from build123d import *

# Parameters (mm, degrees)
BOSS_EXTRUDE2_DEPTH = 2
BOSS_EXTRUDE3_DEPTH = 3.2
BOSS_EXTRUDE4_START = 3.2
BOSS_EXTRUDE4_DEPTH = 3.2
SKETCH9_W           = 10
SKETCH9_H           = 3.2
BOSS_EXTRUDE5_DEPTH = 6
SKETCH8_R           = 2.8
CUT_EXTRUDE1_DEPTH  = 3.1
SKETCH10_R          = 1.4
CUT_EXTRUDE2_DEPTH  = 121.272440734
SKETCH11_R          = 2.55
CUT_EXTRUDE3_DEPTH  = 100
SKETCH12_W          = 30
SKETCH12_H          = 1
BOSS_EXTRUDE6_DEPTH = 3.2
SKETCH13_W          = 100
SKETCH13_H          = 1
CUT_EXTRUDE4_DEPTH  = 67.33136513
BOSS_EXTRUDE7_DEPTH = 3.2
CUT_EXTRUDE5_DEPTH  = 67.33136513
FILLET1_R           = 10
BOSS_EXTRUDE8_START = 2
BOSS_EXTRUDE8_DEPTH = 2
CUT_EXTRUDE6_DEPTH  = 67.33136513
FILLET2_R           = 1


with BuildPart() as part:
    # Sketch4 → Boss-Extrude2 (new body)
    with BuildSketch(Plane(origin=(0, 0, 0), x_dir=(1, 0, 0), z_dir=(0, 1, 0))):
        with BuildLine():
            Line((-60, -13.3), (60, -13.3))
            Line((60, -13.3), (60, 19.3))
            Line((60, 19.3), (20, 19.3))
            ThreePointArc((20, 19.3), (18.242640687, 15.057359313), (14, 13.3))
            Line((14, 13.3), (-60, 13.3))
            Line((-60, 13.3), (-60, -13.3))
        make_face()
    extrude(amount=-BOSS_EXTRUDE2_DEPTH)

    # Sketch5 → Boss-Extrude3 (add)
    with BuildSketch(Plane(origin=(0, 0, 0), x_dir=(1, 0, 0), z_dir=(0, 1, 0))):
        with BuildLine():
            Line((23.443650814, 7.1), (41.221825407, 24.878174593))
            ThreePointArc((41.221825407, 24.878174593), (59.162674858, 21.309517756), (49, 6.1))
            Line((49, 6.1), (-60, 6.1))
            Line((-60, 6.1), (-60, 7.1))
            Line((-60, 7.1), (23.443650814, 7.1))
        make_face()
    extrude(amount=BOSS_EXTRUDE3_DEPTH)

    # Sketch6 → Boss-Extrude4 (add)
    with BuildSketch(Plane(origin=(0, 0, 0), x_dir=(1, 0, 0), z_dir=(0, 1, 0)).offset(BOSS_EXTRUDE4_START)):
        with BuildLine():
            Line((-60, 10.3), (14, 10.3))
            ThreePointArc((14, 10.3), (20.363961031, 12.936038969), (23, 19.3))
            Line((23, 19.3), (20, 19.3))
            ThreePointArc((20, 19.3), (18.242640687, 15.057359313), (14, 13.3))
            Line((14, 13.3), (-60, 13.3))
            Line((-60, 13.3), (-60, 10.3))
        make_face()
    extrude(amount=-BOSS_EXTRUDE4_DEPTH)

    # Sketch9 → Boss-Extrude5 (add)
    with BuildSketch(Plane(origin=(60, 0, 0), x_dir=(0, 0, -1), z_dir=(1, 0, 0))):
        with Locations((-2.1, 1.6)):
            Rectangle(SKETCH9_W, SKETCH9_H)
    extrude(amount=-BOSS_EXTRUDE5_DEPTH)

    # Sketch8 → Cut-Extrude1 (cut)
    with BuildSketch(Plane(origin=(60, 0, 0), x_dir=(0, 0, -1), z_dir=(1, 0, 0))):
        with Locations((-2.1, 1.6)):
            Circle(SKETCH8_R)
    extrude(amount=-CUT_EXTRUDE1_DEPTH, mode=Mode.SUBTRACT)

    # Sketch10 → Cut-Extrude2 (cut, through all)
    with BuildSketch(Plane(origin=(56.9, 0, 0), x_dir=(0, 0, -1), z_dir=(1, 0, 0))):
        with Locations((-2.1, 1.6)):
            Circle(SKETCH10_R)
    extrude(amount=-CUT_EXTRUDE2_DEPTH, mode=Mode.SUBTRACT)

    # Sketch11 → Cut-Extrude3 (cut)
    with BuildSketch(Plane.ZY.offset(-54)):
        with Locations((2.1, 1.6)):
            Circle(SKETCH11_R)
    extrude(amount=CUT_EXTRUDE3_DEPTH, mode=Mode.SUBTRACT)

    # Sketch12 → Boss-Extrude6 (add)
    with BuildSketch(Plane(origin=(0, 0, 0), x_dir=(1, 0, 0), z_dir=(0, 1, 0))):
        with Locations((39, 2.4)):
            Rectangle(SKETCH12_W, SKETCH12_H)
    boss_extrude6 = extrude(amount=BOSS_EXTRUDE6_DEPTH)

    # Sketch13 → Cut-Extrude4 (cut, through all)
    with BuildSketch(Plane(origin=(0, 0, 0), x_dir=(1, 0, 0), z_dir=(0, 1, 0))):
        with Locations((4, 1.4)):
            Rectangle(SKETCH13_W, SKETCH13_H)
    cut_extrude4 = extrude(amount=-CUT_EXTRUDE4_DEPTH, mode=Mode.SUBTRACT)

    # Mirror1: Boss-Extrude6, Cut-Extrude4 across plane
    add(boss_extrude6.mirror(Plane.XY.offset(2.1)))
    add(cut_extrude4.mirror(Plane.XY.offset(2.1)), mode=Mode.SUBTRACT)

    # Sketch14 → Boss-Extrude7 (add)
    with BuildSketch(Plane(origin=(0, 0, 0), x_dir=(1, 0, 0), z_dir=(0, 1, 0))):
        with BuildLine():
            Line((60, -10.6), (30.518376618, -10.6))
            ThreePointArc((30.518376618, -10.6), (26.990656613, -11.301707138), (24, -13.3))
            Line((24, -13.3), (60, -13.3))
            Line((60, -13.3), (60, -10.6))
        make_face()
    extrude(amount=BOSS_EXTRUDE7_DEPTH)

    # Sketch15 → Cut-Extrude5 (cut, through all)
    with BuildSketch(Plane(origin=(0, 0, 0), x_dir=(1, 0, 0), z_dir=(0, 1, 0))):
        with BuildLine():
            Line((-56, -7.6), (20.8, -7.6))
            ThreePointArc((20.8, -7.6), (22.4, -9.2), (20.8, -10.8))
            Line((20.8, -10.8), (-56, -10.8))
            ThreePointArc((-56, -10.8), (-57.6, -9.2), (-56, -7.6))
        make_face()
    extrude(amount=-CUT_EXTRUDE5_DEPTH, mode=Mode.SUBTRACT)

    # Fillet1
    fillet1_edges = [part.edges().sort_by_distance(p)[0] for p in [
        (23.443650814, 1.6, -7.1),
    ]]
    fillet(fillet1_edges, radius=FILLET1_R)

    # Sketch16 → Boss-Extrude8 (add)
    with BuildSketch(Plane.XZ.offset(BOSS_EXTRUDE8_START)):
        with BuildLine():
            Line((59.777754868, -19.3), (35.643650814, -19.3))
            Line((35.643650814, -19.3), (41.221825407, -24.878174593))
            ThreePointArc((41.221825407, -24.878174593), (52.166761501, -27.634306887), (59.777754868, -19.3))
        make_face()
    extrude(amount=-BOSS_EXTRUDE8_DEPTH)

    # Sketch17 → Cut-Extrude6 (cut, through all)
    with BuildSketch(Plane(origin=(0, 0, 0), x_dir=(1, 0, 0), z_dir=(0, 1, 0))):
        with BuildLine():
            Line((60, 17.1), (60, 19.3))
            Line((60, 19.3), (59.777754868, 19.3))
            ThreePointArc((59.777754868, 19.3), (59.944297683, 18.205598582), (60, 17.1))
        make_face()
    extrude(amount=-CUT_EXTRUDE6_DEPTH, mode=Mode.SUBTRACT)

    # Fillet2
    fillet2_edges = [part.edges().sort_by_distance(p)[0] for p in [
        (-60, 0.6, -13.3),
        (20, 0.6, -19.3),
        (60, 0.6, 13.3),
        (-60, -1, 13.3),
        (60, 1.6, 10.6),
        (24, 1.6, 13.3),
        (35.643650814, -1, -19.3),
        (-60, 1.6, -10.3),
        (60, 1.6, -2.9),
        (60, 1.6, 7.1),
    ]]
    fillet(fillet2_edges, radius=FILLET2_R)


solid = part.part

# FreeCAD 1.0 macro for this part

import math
import FreeCAD as App
import Part
import Sketcher

V = App.Vector
Q = App.Units.Quantity


def edges_at(feature, points):
    """Names of the edges that pass closest to the given points."""
    edges = feature.Shape.Edges
    near = lambda p: min(range(len(edges)), key=lambda i: edges[i].distToShape(Part.Vertex(*p))[0])
    return sorted({f"Edge{near(p) + 1}" for p in points})

doc = App.newDocument("Part")
body = doc.addObject("PartDesign::Body", "Body")

# Sketch on XZ plane
sketch1 = body.newObject("Sketcher::SketchObject", "Sketch")
sketch1.AttachmentSupport = (doc.getObject("XZ_Plane"), [""])
sketch1.MapMode = "FlatFace"
sketch1.addGeometry(Part.LineSegment(V(-60, 13, 0), V(60, 13, 0)), False)
sketch1.addGeometry(Part.LineSegment(V(60, 13, 0), V(60, -19, 0)), False)
sketch1.addGeometry(Part.LineSegment(V(60, -19, 0), V(20, -19, 0)), False)
sketch1.addGeometry(Part.ArcOfCircle(Part.Circle(V(14, -19, 0), V(0, 0, 1), 6), math.radians(0), math.radians(90)), False)
sketch1.addGeometry(Part.LineSegment(V(14, -13, 0), V(-60, -13, 0)), False)
sketch1.addGeometry(Part.LineSegment(V(-60, -13, 0), V(-60, 13, 0)), False)
sketch1.addConstraint(Sketcher.Constraint("Coincident", 0, 2, 1, 1))
sketch1.addConstraint(Sketcher.Constraint("Coincident", 1, 2, 2, 1))
sketch1.addConstraint(Sketcher.Constraint("Coincident", 2, 2, 3, 1))
sketch1.addConstraint(Sketcher.Constraint("Tangent", 3, 2, 4, 1))
sketch1.addConstraint(Sketcher.Constraint("Coincident", 4, 2, 5, 1))
sketch1.addConstraint(Sketcher.Constraint("Coincident", 5, 2, 0, 1))
sketch1.addConstraint(Sketcher.Constraint("Horizontal", 0))
sketch1.addConstraint(Sketcher.Constraint("Vertical", 1))
sketch1.addConstraint(Sketcher.Constraint("Horizontal", 2))
sketch1.addConstraint(Sketcher.Constraint("Horizontal", 4))
sketch1.addConstraint(Sketcher.Constraint("Vertical", 5))
sketch1.addConstraint(Sketcher.Constraint("Symmetric", 0, 2, 4, 2, -1, 1))
sketch1.addConstraint(Sketcher.Constraint("Horizontal", 3, 3, 1, 2))
sketch1.addConstraint(Sketcher.Constraint("Radius", 3, Q("6 mm")))
sketch1.addConstraint(Sketcher.Constraint("DistanceX", 0, 1, 0, 2, Q("120 mm")))
sketch1.addConstraint(Sketcher.Constraint("DistanceX", 2, 2, 2, 1, Q("40 mm")))
sketch1.addConstraint(Sketcher.Constraint("DistanceY", 1, 2, 1, 1, Q("32.6 mm")))
pad1 = body.newObject("PartDesign::Pad", "Pad")
pad1.Profile = sketch1
pad1.Length = 2

# Sketch on XZ plane
sketch2 = body.newObject("Sketcher::SketchObject", "Sketch001")
sketch2.AttachmentSupport = (doc.getObject("XZ_Plane"), [""])
sketch2.MapMode = "FlatFace"
sketch2.addGeometry(Part.LineSegment(V(41.2, -24.9, 0), V(23.4, -7.1, 0)), False)
sketch2.addGeometry(Part.LineSegment(V(23.4, -7.1, 0), V(-60, -7.1, 0)), False)
sketch2.addGeometry(Part.LineSegment(V(-60, -7.1, 0), V(-60, -6.1, 0)), False)
sketch2.addGeometry(Part.LineSegment(V(-60, -6.1, 0), V(49, -6.1, 0)), False)
sketch2.addGeometry(Part.ArcOfCircle(Part.Circle(V(49, -17.1, 0), V(0, 0, 1), 11), math.radians(-135), math.radians(90)), False)
sketch2.addConstraint(Sketcher.Constraint("Coincident", 0, 2, 1, 1))
sketch2.addConstraint(Sketcher.Constraint("Coincident", 1, 2, 2, 1))
sketch2.addConstraint(Sketcher.Constraint("Coincident", 2, 2, 3, 1))
sketch2.addConstraint(Sketcher.Constraint("Tangent", 3, 2, 4, 2))
sketch2.addConstraint(Sketcher.Constraint("Tangent", 4, 1, 0, 1))
sketch2.addConstraint(Sketcher.Constraint("Horizontal", 1))
sketch2.addConstraint(Sketcher.Constraint("Vertical", 2))
sketch2.addConstraint(Sketcher.Constraint("Horizontal", 3))
sketch2.addConstraint(Sketcher.Constraint("Radius", 4, Q("11 mm")))
sketch2.addConstraint(Sketcher.Constraint("DistanceX", 3, 1, 3, 2, Q("109 mm")))
sketch2.addConstraint(Sketcher.Constraint("DistanceY", 2, 1, 2, 2, Q("1 mm")))
sketch2.addConstraint(Sketcher.Constraint("Angle", 0, Q("135 deg")))
sketch2.addConstraint(Sketcher.Constraint("DistanceX", -1, 1, 4, 3, Q("49 mm")))
sketch2.addConstraint(Sketcher.Constraint("DistanceY", 4, 3, -1, 1, Q("17.1 mm")))
pad2 = body.newObject("PartDesign::Pad", "Pad001")
pad2.Profile = sketch2
pad2.Length = 3.2
pad2.Reversed = True

# Sketch on XZ plane
sketch3 = body.newObject("Sketcher::SketchObject", "Sketch002")
sketch3.AttachmentSupport = (doc.getObject("XZ_Plane"), [""])
sketch3.MapMode = "FlatFace"
sketch3.AttachmentOffset = App.Placement(V(0, 0, -3.2), App.Rotation())
sketch3.addGeometry(Part.LineSegment(V(-60, -10.3, 0), V(14, -10.3, 0)), False)
sketch3.addGeometry(Part.ArcOfCircle(Part.Circle(V(14, -19.3, 0), V(0, 0, 1), 9), math.radians(0), math.radians(90)), False)
sketch3.addGeometry(Part.LineSegment(V(23, -19.3, 0), V(20, -19.3, 0)), False)
sketch3.addGeometry(Part.ArcOfCircle(Part.Circle(V(14, -19.3, 0), V(0, 0, 1), 6), math.radians(0), math.radians(90)), False)
sketch3.addGeometry(Part.LineSegment(V(14, -13.3, 0), V(-60, -13.3, 0)), False)
sketch3.addGeometry(Part.LineSegment(V(-60, -13.3, 0), V(-60, -10.3, 0)), False)
sketch3.addConstraint(Sketcher.Constraint("Tangent", 0, 2, 1, 2))
sketch3.addConstraint(Sketcher.Constraint("Coincident", 1, 1, 2, 1))
sketch3.addConstraint(Sketcher.Constraint("Coincident", 2, 2, 3, 1))
sketch3.addConstraint(Sketcher.Constraint("Tangent", 3, 2, 4, 1))
sketch3.addConstraint(Sketcher.Constraint("Coincident", 4, 2, 5, 1))
sketch3.addConstraint(Sketcher.Constraint("Coincident", 5, 2, 0, 1))
sketch3.addConstraint(Sketcher.Constraint("Horizontal", 0))
sketch3.addConstraint(Sketcher.Constraint("Horizontal", 2))
sketch3.addConstraint(Sketcher.Constraint("Horizontal", 4))
sketch3.addConstraint(Sketcher.Constraint("Vertical", 5))
sketch3.addConstraint(Sketcher.Constraint("Coincident", 3, 3, 1, 3))
sketch3.addConstraint(Sketcher.Constraint("Horizontal", 3, 3, 1, 1))
sketch3.addConstraint(Sketcher.Constraint("Radius", 1, Q("9 mm")))
sketch3.addConstraint(Sketcher.Constraint("Radius", 3, Q("6 mm")))
sketch3.addConstraint(Sketcher.Constraint("DistanceX", 0, 1, 0, 2, Q("74 mm")))
sketch3.addConstraint(Sketcher.Constraint("DistanceX", -1, 1, 1, 3, Q("14 mm")))
sketch3.addConstraint(Sketcher.Constraint("DistanceY", 1, 3, -1, 1, Q("19.3 mm")))
pad3 = body.newObject("PartDesign::Pad", "Pad002")
pad3.Profile = sketch3
pad3.Length = 3.2

# Sketch on YZ plane
sketch4 = body.newObject("Sketcher::SketchObject", "Sketch003")
sketch4.AttachmentSupport = (doc.getObject("YZ_Plane"), [""])
sketch4.MapMode = "FlatFace"
sketch4.AttachmentOffset = App.Placement(V(0, 0, 60), App.Rotation())
sketch4.addGeometry(Part.LineSegment(V(3.2, 7.1, 0), V(0, 7.1, 0)), False)
sketch4.addGeometry(Part.LineSegment(V(0, 7.1, 0), V(0, -2.9, 0)), False)
sketch4.addGeometry(Part.LineSegment(V(0, -2.9, 0), V(3.2, -2.9, 0)), False)
sketch4.addGeometry(Part.LineSegment(V(3.2, -2.9, 0), V(3.2, 7.1, 0)), False)
sketch4.addConstraint(Sketcher.Constraint("Coincident", 0, 2, 1, 1))
sketch4.addConstraint(Sketcher.Constraint("Coincident", 1, 2, 2, 1))
sketch4.addConstraint(Sketcher.Constraint("Coincident", 2, 2, 3, 1))
sketch4.addConstraint(Sketcher.Constraint("Coincident", 3, 2, 0, 1))
sketch4.addConstraint(Sketcher.Constraint("Horizontal", 0))
sketch4.addConstraint(Sketcher.Constraint("Vertical", 1))
sketch4.addConstraint(Sketcher.Constraint("Horizontal", 2))
sketch4.addConstraint(Sketcher.Constraint("Vertical", 3))
sketch4.addConstraint(Sketcher.Constraint("PointOnObject", 0, 2, -2))
sketch4.addConstraint(Sketcher.Constraint("DistanceY", 1, 2, 1, 1, Q("10 mm")))
sketch4.addConstraint(Sketcher.Constraint("DistanceX", 0, 2, 0, 1, Q("3.2 mm")))
sketch4.addConstraint(Sketcher.Constraint("DistanceY", -1, 1, 0, 2, Q("7.1 mm")))
pad4 = body.newObject("PartDesign::Pad", "Pad003")
pad4.Profile = sketch4
pad4.Length = 6
pad4.Reversed = True

# Sketch on YZ plane
sketch5 = body.newObject("Sketcher::SketchObject", "Sketch004")
sketch5.AttachmentSupport = (doc.getObject("YZ_Plane"), [""])
sketch5.MapMode = "FlatFace"
sketch5.AttachmentOffset = App.Placement(V(0, 0, 60), App.Rotation())
sketch5.addGeometry(Part.Circle(V(1.6, 2.1, 0), V(0, 0, 1), 2.8), False)
sketch5.addConstraint(Sketcher.Constraint("Diameter", 0, Q("5.6 mm")))
sketch5.addConstraint(Sketcher.Constraint("DistanceX", -1, 1, 0, 3, Q("1.6 mm")))
sketch5.addConstraint(Sketcher.Constraint("DistanceY", -1, 1, 0, 3, Q("2.1 mm")))
pocket1 = body.newObject("PartDesign::Pocket", "Pocket")
pocket1.Profile = sketch5
pocket1.Length = 3.1

# Sketch on YZ plane
sketch6 = body.newObject("Sketcher::SketchObject", "Sketch005")
sketch6.AttachmentSupport = (doc.getObject("YZ_Plane"), [""])
sketch6.MapMode = "FlatFace"
sketch6.AttachmentOffset = App.Placement(V(0, 0, 56.9), App.Rotation())
sketch6.addGeometry(Part.Circle(V(1.6, 2.1, 0), V(0, 0, 1), 1.4), False)
sketch6.addConstraint(Sketcher.Constraint("Diameter", 0, Q("2.8 mm")))
sketch6.addConstraint(Sketcher.Constraint("DistanceX", -1, 1, 0, 3, Q("1.6 mm")))
sketch6.addConstraint(Sketcher.Constraint("DistanceY", -1, 1, 0, 3, Q("2.1 mm")))
pocket2 = body.newObject("PartDesign::Pocket", "Pocket001")
pocket2.Profile = sketch6
pocket2.Type = "ThroughAll"

# Sketch on YZ plane
sketch7 = body.newObject("Sketcher::SketchObject", "Sketch006")
sketch7.AttachmentSupport = (doc.getObject("YZ_Plane"), [""])
sketch7.MapMode = "FlatFace"
sketch7.AttachmentOffset = App.Placement(V(0, 0, 54), App.Rotation())
sketch7.addGeometry(Part.Circle(V(1.6, 2.1, 0), V(0, 0, 1), 2.5), False)
sketch7.addConstraint(Sketcher.Constraint("Diameter", 0, Q("5.1 mm")))
sketch7.addConstraint(Sketcher.Constraint("DistanceX", -1, 1, 0, 3, Q("1.6 mm")))
sketch7.addConstraint(Sketcher.Constraint("DistanceY", -1, 1, 0, 3, Q("2.1 mm")))
pocket3 = body.newObject("PartDesign::Pocket", "Pocket002")
pocket3.Profile = sketch7
pocket3.Length = 100

# Sketch on XZ plane
sketch8 = body.newObject("Sketcher::SketchObject", "Sketch007")
sketch8.AttachmentSupport = (doc.getObject("XZ_Plane"), [""])
sketch8.MapMode = "FlatFace"
sketch8.addGeometry(Part.LineSegment(V(24, -2.9, 0), V(24, -1.9, 0)), False)
sketch8.addGeometry(Part.LineSegment(V(24, -1.9, 0), V(54, -1.9, 0)), False)
sketch8.addGeometry(Part.LineSegment(V(54, -1.9, 0), V(54, -2.9, 0)), False)
sketch8.addGeometry(Part.LineSegment(V(54, -2.9, 0), V(24, -2.9, 0)), False)
sketch8.addConstraint(Sketcher.Constraint("Coincident", 0, 2, 1, 1))
sketch8.addConstraint(Sketcher.Constraint("Coincident", 1, 2, 2, 1))
sketch8.addConstraint(Sketcher.Constraint("Coincident", 2, 2, 3, 1))
sketch8.addConstraint(Sketcher.Constraint("Coincident", 3, 2, 0, 1))
sketch8.addConstraint(Sketcher.Constraint("Vertical", 0))
sketch8.addConstraint(Sketcher.Constraint("Horizontal", 1))
sketch8.addConstraint(Sketcher.Constraint("Vertical", 2))
sketch8.addConstraint(Sketcher.Constraint("Horizontal", 3))
sketch8.addConstraint(Sketcher.Constraint("DistanceX", 1, 1, 1, 2, Q("30 mm")))
sketch8.addConstraint(Sketcher.Constraint("DistanceY", 0, 1, 0, 2, Q("1 mm")))
sketch8.addConstraint(Sketcher.Constraint("DistanceX", -1, 1, 0, 2, Q("24 mm")))
sketch8.addConstraint(Sketcher.Constraint("DistanceY", 0, 2, -1, 1, Q("1.9 mm")))
pad5 = body.newObject("PartDesign::Pad", "Pad004")
pad5.Profile = sketch8
pad5.Length = 3.2
pad5.Reversed = True

# Sketch on XZ plane
sketch9 = body.newObject("Sketcher::SketchObject", "Sketch008")
sketch9.AttachmentSupport = (doc.getObject("XZ_Plane"), [""])
sketch9.MapMode = "FlatFace"
sketch9.addGeometry(Part.LineSegment(V(-46, -1.9, 0), V(-46, -0.9, 0)), False)
sketch9.addGeometry(Part.LineSegment(V(-46, -0.9, 0), V(54, -0.9, 0)), False)
sketch9.addGeometry(Part.LineSegment(V(54, -0.9, 0), V(54, -1.9, 0)), False)
sketch9.addGeometry(Part.LineSegment(V(54, -1.9, 0), V(-46, -1.9, 0)), False)
sketch9.addConstraint(Sketcher.Constraint("Coincident", 0, 2, 1, 1))
sketch9.addConstraint(Sketcher.Constraint("Coincident", 1, 2, 2, 1))
sketch9.addConstraint(Sketcher.Constraint("Coincident", 2, 2, 3, 1))
sketch9.addConstraint(Sketcher.Constraint("Coincident", 3, 2, 0, 1))
sketch9.addConstraint(Sketcher.Constraint("Vertical", 0))
sketch9.addConstraint(Sketcher.Constraint("Horizontal", 1))
sketch9.addConstraint(Sketcher.Constraint("Vertical", 2))
sketch9.addConstraint(Sketcher.Constraint("Horizontal", 3))
sketch9.addConstraint(Sketcher.Constraint("DistanceX", 1, 1, 1, 2, Q("100 mm")))
sketch9.addConstraint(Sketcher.Constraint("DistanceY", 0, 1, 0, 2, Q("1 mm")))
sketch9.addConstraint(Sketcher.Constraint("DistanceX", 0, 2, -1, 1, Q("46 mm")))
sketch9.addConstraint(Sketcher.Constraint("DistanceY", 0, 2, -1, 1, Q("0.9 mm")))
pocket4 = body.newObject("PartDesign::Pocket", "Pocket003")
pocket4.Profile = sketch9
pocket4.Type = "ThroughAll"
pocket4.Reversed = True
doc.recompute()

datumplane = body.newObject("PartDesign::Plane", "DatumPlane")
datumplane.AttachmentSupport = (doc.getObject("XY_Plane"), [""])
datumplane.MapMode = "FlatFace"
datumplane.AttachmentOffset = App.Placement(V(0, 0, 2.1), App.Rotation())
mirrored = body.newObject("PartDesign::Mirrored", "Mirrored")
mirrored.Originals = [pad5, pocket4]
mirrored.MirrorPlane = (datumplane, [""])
body.Tip = mirrored

# Sketch on XZ plane
sketch10 = body.newObject("Sketcher::SketchObject", "Sketch009")
sketch10.AttachmentSupport = (doc.getObject("XZ_Plane"), [""])
sketch10.MapMode = "FlatFace"
sketch10.addGeometry(Part.LineSegment(V(60, 10.6, 0), V(30.5, 10.6, 0)), False)
sketch10.addGeometry(Part.ArcOfCircle(Part.Circle(V(30.5, 19.8, 0), V(0, 0, 1), 9.2), math.radians(-135), math.radians(-90)), False)
sketch10.addGeometry(Part.LineSegment(V(24, 13.3, 0), V(60, 13.3, 0)), False)
sketch10.addGeometry(Part.LineSegment(V(60, 13.3, 0), V(60, 10.6, 0)), False)
sketch10.addConstraint(Sketcher.Constraint("Tangent", 0, 2, 1, 2))
sketch10.addConstraint(Sketcher.Constraint("Coincident", 1, 1, 2, 1))
sketch10.addConstraint(Sketcher.Constraint("Coincident", 2, 2, 3, 1))
sketch10.addConstraint(Sketcher.Constraint("Coincident", 3, 2, 0, 1))
sketch10.addConstraint(Sketcher.Constraint("Horizontal", 0))
sketch10.addConstraint(Sketcher.Constraint("Horizontal", 2))
sketch10.addConstraint(Sketcher.Constraint("Vertical", 3))
sketch10.addConstraint(Sketcher.Constraint("DistanceX", 2, 1, 2, 2, Q("36 mm")))
sketch10.addConstraint(Sketcher.Constraint("DistanceY", 3, 2, 3, 1, Q("2.7 mm")))
sketch10.addConstraint(Sketcher.Constraint("DistanceX", -1, 1, 1, 1, Q("24 mm")))
sketch10.addConstraint(Sketcher.Constraint("DistanceY", -1, 1, 0, 2, Q("10.6 mm")))
sketch10.addConstraint(Sketcher.Constraint("Radius", 1, Q("9.218377 mm")))
pad6 = body.newObject("PartDesign::Pad", "Pad005")
pad6.Profile = sketch10
pad6.Length = 3.2
pad6.Reversed = True

# Sketch on XZ plane
sketch11 = body.newObject("Sketcher::SketchObject", "Sketch010")
sketch11.AttachmentSupport = (doc.getObject("XZ_Plane"), [""])
sketch11.MapMode = "FlatFace"
sketch11.addGeometry(Part.LineSegment(V(20.8, 7.6, 0), V(-56, 7.6, 0)), False)
sketch11.addGeometry(Part.ArcOfCircle(Part.Circle(V(-56, 9.2, 0), V(0, 0, 1), 1.6), math.radians(90), math.radians(270)), False)
sketch11.addGeometry(Part.LineSegment(V(-56, 10.8, 0), V(20.8, 10.8, 0)), False)
sketch11.addGeometry(Part.ArcOfCircle(Part.Circle(V(20.8, 9.2, 0), V(0, 0, 1), 1.6), math.radians(-90), math.radians(90)), False)
sketch11.addConstraint(Sketcher.Constraint("Tangent", 0, 2, 1, 2))
sketch11.addConstraint(Sketcher.Constraint("Tangent", 1, 1, 2, 1))
sketch11.addConstraint(Sketcher.Constraint("Tangent", 2, 2, 3, 2))
sketch11.addConstraint(Sketcher.Constraint("Tangent", 3, 1, 0, 1))
sketch11.addConstraint(Sketcher.Constraint("Horizontal", 0))
sketch11.addConstraint(Sketcher.Constraint("Horizontal", 2))
sketch11.addConstraint(Sketcher.Constraint("Radius", 1, Q("1.6 mm")))
sketch11.addConstraint(Sketcher.Constraint("DistanceX", 0, 2, 0, 1, Q("76.8 mm")))
sketch11.addConstraint(Sketcher.Constraint("DistanceX", 1, 3, -1, 1, Q("56 mm")))
sketch11.addConstraint(Sketcher.Constraint("DistanceY", -1, 1, 1, 3, Q("9.2 mm")))
pocket5 = body.newObject("PartDesign::Pocket", "Pocket004")
pocket5.Profile = sketch11
pocket5.Type = "ThroughAll"
pocket5.Reversed = True
doc.recompute()

fillet = body.newObject("PartDesign::Fillet", "Fillet")
fillet.Base = (pocket5, edges_at(pocket5, [(23.444, 1.6, -7.1)]))
fillet.Radius = 10

# Sketch on XZ plane
sketch12 = body.newObject("Sketcher::SketchObject", "Sketch011")
sketch12.AttachmentSupport = (doc.getObject("XZ_Plane"), [""])
sketch12.MapMode = "FlatFace"
sketch12.AttachmentOffset = App.Placement(V(0, 0, 2), App.Rotation())
sketch12.addGeometry(Part.LineSegment(V(60, -19, 0), V(36, -19, 0)), False)
sketch12.addGeometry(Part.LineSegment(V(36, -19, 0), V(41, -25, 0)), False)
sketch12.addGeometry(Part.ArcOfCircle(Part.Circle(V(49, -17, 0), V(0, 0, 1), 11), math.radians(-135), math.radians(-12)), False)
sketch12.addConstraint(Sketcher.Constraint("Coincident", 0, 2, 1, 1))
sketch12.addConstraint(Sketcher.Constraint("Tangent", 1, 2, 2, 1))
sketch12.addConstraint(Sketcher.Constraint("Coincident", 2, 2, 0, 1))
sketch12.addConstraint(Sketcher.Constraint("Horizontal", 0))
sketch12.addConstraint(Sketcher.Constraint("Radius", 2, Q("11 mm")))
sketch12.addConstraint(Sketcher.Constraint("Angle", 1, Q("-45 deg")))
sketch12.addConstraint(Sketcher.Constraint("DistanceX", -1, 1, 2, 3, Q("49 mm")))
sketch12.addConstraint(Sketcher.Constraint("DistanceY", 2, 3, -1, 1, Q("17.1 mm")))
sketch12.addConstraint(Sketcher.Constraint("DistanceY", 0, 2, -1, 1, Q("19.3 mm")))
pad7 = body.newObject("PartDesign::Pad", "Pad006")
pad7.Profile = sketch12
pad7.Length = 2
pad7.Reversed = True

# Sketch on XZ plane
sketch13 = body.newObject("Sketcher::SketchObject", "Sketch012")
sketch13.AttachmentSupport = (doc.getObject("XZ_Plane"), [""])
sketch13.MapMode = "FlatFace"
sketch13.addGeometry(Part.LineSegment(V(60, -17.1, 0), V(60, -19.3, 0)), False)
sketch13.addGeometry(Part.LineSegment(V(60, -19.3, 0), V(59.78, -19.3, 0)), False)
sketch13.addGeometry(Part.ArcOfCircle(Part.Circle(V(49, -17.1, 0), V(0, 0, 1), 11), math.radians(-11.54), math.radians(0)), False)
sketch13.addConstraint(Sketcher.Constraint("Coincident", 0, 2, 1, 1))
sketch13.addConstraint(Sketcher.Constraint("Coincident", 1, 2, 2, 1))
sketch13.addConstraint(Sketcher.Constraint("Tangent", 2, 2, 0, 1))
sketch13.addConstraint(Sketcher.Constraint("Vertical", 0))
sketch13.addConstraint(Sketcher.Constraint("Horizontal", 1))
sketch13.addConstraint(Sketcher.Constraint("Radius", 2, Q("11 mm")))
sketch13.addConstraint(Sketcher.Constraint("DistanceY", 0, 2, 0, 1, Q("2.2 mm")))
sketch13.addConstraint(Sketcher.Constraint("DistanceX", -1, 1, 2, 3, Q("49 mm")))
sketch13.addConstraint(Sketcher.Constraint("DistanceY", 2, 3, -1, 1, Q("17.1 mm")))
pocket6 = body.newObject("PartDesign::Pocket", "Pocket005")
pocket6.Profile = sketch13
pocket6.Type = "ThroughAll"
pocket6.Reversed = True
doc.recompute()

fillet2 = body.newObject("PartDesign::Fillet", "Fillet001")
fillet2.Base = (pocket6, edges_at(pocket6, [
    (-60, 0.6, -13.3),
    (20, 0.6, -19.3),
    (60, 0.6, 13.3),
    (-60, -1, 13.3),
    (60, 1.6, 10.6),
    (24, 1.6, 13.3),
    (35.644, -1, -19.3),
    (-60, 1.6, -10.3),
    (60, 1.6, -2.9),
    (60, 1.6, 7.1),
]))
fillet2.Radius = 1

doc.recompute()
